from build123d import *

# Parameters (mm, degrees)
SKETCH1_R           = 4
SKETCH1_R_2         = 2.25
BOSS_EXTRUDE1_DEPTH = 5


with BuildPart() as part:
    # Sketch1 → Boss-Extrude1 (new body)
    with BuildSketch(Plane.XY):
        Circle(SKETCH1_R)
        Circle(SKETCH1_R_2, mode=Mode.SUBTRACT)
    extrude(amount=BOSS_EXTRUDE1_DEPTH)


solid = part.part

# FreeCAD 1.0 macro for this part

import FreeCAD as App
import Part
import Sketcher

V = App.Vector

doc = App.newDocument("Part")
body = doc.addObject("PartDesign::Body", "Body")

# Sketch on XY plane
sketch1 = doc.addObject("Sketcher::SketchObject", "Sketch")
body.addObject(sketch1)
sketch1.AttachmentSupport = (doc.XY_Plane, [""])
sketch1.MapMode = "FlatFace"
sketch1.addGeometry(Part.Circle(V(0, 0, 0), V(0, 0, 1), 4), False)
sketch1.addGeometry(Part.Circle(V(0, 0, 0), V(0, 0, 1), 2.25), False)
sketch1.addConstraint(Sketcher.Constraint("Coincident", 0, 3, -1, 1))
sketch1.addConstraint(Sketcher.Constraint("Coincident", 1, 3, -1, 1))
sketch1.addConstraint(Sketcher.Constraint("Diameter", 0, 8.0))
sketch1.addConstraint(Sketcher.Constraint("Diameter", 1, 4.5))
pad1 = doc.addObject("PartDesign::Pad", "Pad")
body.addObject(pad1)
pad1.Profile = sketch1
pad1.Length = 5

doc.recompute()
